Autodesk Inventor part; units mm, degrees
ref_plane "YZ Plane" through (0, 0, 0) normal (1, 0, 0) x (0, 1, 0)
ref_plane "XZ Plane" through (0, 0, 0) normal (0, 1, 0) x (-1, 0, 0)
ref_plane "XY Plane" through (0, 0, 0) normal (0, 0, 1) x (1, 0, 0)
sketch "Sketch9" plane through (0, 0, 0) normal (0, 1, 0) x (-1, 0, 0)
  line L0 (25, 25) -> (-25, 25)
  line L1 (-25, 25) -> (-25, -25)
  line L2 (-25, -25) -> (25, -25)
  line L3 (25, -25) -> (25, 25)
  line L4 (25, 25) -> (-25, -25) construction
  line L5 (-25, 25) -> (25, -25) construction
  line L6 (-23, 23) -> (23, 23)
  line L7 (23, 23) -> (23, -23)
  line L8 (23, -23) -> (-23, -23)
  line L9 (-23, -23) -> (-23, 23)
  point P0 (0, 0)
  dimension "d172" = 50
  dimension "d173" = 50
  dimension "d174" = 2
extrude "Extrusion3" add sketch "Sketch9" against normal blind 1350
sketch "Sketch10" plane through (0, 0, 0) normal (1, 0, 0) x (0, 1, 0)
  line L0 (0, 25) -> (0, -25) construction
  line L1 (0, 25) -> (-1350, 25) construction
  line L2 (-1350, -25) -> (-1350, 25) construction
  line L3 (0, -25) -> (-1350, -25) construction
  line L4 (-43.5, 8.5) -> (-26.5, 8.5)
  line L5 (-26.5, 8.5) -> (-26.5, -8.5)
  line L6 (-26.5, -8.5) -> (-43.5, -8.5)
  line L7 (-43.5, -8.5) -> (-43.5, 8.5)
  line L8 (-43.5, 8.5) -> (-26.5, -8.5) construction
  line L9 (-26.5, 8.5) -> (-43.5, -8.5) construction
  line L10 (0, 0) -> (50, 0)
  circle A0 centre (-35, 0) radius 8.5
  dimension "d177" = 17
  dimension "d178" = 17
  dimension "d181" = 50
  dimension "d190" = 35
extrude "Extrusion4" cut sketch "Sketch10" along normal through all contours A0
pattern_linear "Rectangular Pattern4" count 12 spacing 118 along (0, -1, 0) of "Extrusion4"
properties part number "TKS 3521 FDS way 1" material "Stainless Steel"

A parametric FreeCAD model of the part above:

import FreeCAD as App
import Part
import Sketcher

V = App.Vector


def add_polygon(sketch, points):
    """Adds a closed chain of lines whose ends are joined by coincident constraints."""
    first, n = sketch.GeometryCount, len(points)
    for a, b in zip(points, points[1:] + points[:1]):
        sketch.addGeometry(Part.LineSegment(App.Vector(*a, 0), App.Vector(*b, 0)), False)
    for i in range(n):
        sketch.addConstraint(Sketcher.Constraint("Coincident", first + i, 2, first + (i + 1) % n, 1))

doc = App.newDocument("Part")
body = doc.addObject("PartDesign::Body", "Body")

sketch1 = body.newObject("Sketcher::SketchObject", "Sketch")
sketch1.AttachmentSupport = (doc.getObject("XZ_Plane"), [""])
sketch1.MapMode = "FlatFace"
add_polygon(sketch1, [(-25, -25), (-25, 25), (25, 25), (25, -25)])
add_polygon(sketch1, [(23, -23), (23, 23), (-23, 23), (-23, -23)])
sketch1.addConstraint(Sketcher.Constraint("Vertical", 0))
sketch1.addConstraint(Sketcher.Constraint("Horizontal", 1))
sketch1.addConstraint(Sketcher.Constraint("Vertical", 2))
sketch1.addConstraint(Sketcher.Constraint("Horizontal", 3))
sketch1.addConstraint(Sketcher.Constraint("Vertical", 4))
sketch1.addConstraint(Sketcher.Constraint("Horizontal", 5))
sketch1.addConstraint(Sketcher.Constraint("Vertical", 6))
sketch1.addConstraint(Sketcher.Constraint("Horizontal", 7))
sketch1.addConstraint(Sketcher.Constraint("Symmetric", 0, 2, 2, 2, -1, 1))
sketch1.addConstraint(Sketcher.Constraint("Symmetric", 4, 2, 6, 2, -1, 1))
sketch1.addConstraint(Sketcher.Constraint("Equal", 3, 0))
sketch1.addConstraint(Sketcher.Constraint("Equal", 7, 4))
sketch1.addConstraint(Sketcher.Constraint("DistanceX", 1, 1, 1, 2, 50.0))
sketch1.addConstraint(Sketcher.Constraint("DistanceX", 4, 2, 1, 2, 2.0))
pad1 = body.newObject("PartDesign::Pad", "Pad")
pad1.Profile = sketch1
pad1.Length = 1350

sketch2 = body.newObject("Sketcher::SketchObject", "Sketch001")
sketch2.AttachmentSupport = (doc.getObject("YZ_Plane"), [""])
sketch2.MapMode = "FlatFace"
sketch2.addGeometry(Part.Circle(V(-35, 0, 0), V(0, 0, 1), 8.5), False)
sketch2.addConstraint(Sketcher.Constraint("PointOnObject", 0, 3, -1))
sketch2.addConstraint(Sketcher.Constraint("Diameter", 0, 17.0))
sketch2.addConstraint(Sketcher.Constraint("DistanceX", 0, 3, -1, 1, 35.0))
pocket1 = body.newObject("PartDesign::Pocket", "Pocket")
pocket1.Profile = sketch2
pocket1.Type = "ThroughAll"
pocket1.Reversed = True
doc.recompute()

linearpattern = body.newObject("PartDesign::LinearPattern", "LinearPattern")
linearpattern.Originals = [pocket1]
linearpattern.Direction = (doc.getObject("Y_Axis"), [""])
linearpattern.Mode = "offset"
linearpattern.Offset = 118
linearpattern.Occurrences = 12
linearpattern.Reversed = True
body.Tip = linearpattern

doc.recompute()
